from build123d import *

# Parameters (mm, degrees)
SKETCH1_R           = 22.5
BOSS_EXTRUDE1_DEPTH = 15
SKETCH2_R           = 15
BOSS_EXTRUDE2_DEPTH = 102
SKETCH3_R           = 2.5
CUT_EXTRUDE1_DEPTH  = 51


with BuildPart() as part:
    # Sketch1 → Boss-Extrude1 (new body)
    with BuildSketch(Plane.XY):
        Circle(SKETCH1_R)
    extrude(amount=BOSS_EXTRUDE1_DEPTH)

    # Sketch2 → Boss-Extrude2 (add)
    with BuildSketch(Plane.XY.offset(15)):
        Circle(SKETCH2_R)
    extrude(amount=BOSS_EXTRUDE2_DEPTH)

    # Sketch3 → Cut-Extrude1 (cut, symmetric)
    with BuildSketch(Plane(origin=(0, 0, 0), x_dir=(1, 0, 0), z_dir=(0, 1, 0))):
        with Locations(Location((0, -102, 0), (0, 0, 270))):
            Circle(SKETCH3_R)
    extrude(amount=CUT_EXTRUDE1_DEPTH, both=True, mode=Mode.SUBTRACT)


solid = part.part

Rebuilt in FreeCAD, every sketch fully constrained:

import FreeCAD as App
import Part
import Sketcher
from FreeCAD import Vector
Q = App.Units.Quantity

doc = App.newDocument("Part")
body = doc.addObject("PartDesign::Body", "Body")

# Sketch on XY plane
sketch1 = body.newObject("Sketcher::SketchObject", "Sketch")
sketch1.AttachmentSupport = (doc.getObject("XY_Plane"), [""])
sketch1.MapMode = "FlatFace"
sketch1.addGeometry(Part.Circle(Vector(0, 0, 0), Vector(0, 0, 1), 22.5), False)
sketch1.addConstraint([
    Sketcher.Constraint("Coincident", 0, 3, -1, 1),
    Sketcher.Constraint("Diameter", 0, Q("45 mm")),
])
pad1 = body.newObject("PartDesign::Pad", "Pad")
pad1.Profile = sketch1
pad1.Length = 15

# Sketch on XY plane
sketch2 = body.newObject("Sketcher::SketchObject", "Sketch001")
sketch2.AttachmentSupport = (doc.getObject("XY_Plane"), [""])
sketch2.MapMode = "FlatFace"
sketch2.AttachmentOffset = App.Placement(Vector(0, 0, 15), App.Rotation())
sketch2.addGeometry(Part.Circle(Vector(0, 0, 0), Vector(0, 0, 1), 15), False)
sketch2.addConstraint([
    Sketcher.Constraint("Coincident", 0, 3, -1, 1),
    Sketcher.Constraint("Diameter", 0, Q("30 mm")),
])
pad2 = body.newObject("PartDesign::Pad", "Pad001")
pad2.Profile = sketch2
pad2.Length = 102

# Sketch on XZ plane
sketch3 = body.newObject("Sketcher::SketchObject", "Sketch002")
sketch3.AttachmentSupport = (doc.getObject("XZ_Plane"), [""])
sketch3.MapMode = "FlatFace"
sketch3.addGeometry(Part.Circle(Vector(0, 102, 0), Vector(0, 0, 1), 2.5), False)
sketch3.addConstraint([
    Sketcher.Constraint("PointOnObject", 0, 3, -2),
    Sketcher.Constraint("Diameter", 0, Q("5 mm")),
    Sketcher.Constraint("DistanceY", -1, 1, 0, 3, Q("102 mm")),
])
pocket1 = body.newObject("PartDesign::Pocket", "Pocket")
pocket1.Profile = sketch3
pocket1.Length = 102
pocket1.Midplane = True

doc.recompute()
